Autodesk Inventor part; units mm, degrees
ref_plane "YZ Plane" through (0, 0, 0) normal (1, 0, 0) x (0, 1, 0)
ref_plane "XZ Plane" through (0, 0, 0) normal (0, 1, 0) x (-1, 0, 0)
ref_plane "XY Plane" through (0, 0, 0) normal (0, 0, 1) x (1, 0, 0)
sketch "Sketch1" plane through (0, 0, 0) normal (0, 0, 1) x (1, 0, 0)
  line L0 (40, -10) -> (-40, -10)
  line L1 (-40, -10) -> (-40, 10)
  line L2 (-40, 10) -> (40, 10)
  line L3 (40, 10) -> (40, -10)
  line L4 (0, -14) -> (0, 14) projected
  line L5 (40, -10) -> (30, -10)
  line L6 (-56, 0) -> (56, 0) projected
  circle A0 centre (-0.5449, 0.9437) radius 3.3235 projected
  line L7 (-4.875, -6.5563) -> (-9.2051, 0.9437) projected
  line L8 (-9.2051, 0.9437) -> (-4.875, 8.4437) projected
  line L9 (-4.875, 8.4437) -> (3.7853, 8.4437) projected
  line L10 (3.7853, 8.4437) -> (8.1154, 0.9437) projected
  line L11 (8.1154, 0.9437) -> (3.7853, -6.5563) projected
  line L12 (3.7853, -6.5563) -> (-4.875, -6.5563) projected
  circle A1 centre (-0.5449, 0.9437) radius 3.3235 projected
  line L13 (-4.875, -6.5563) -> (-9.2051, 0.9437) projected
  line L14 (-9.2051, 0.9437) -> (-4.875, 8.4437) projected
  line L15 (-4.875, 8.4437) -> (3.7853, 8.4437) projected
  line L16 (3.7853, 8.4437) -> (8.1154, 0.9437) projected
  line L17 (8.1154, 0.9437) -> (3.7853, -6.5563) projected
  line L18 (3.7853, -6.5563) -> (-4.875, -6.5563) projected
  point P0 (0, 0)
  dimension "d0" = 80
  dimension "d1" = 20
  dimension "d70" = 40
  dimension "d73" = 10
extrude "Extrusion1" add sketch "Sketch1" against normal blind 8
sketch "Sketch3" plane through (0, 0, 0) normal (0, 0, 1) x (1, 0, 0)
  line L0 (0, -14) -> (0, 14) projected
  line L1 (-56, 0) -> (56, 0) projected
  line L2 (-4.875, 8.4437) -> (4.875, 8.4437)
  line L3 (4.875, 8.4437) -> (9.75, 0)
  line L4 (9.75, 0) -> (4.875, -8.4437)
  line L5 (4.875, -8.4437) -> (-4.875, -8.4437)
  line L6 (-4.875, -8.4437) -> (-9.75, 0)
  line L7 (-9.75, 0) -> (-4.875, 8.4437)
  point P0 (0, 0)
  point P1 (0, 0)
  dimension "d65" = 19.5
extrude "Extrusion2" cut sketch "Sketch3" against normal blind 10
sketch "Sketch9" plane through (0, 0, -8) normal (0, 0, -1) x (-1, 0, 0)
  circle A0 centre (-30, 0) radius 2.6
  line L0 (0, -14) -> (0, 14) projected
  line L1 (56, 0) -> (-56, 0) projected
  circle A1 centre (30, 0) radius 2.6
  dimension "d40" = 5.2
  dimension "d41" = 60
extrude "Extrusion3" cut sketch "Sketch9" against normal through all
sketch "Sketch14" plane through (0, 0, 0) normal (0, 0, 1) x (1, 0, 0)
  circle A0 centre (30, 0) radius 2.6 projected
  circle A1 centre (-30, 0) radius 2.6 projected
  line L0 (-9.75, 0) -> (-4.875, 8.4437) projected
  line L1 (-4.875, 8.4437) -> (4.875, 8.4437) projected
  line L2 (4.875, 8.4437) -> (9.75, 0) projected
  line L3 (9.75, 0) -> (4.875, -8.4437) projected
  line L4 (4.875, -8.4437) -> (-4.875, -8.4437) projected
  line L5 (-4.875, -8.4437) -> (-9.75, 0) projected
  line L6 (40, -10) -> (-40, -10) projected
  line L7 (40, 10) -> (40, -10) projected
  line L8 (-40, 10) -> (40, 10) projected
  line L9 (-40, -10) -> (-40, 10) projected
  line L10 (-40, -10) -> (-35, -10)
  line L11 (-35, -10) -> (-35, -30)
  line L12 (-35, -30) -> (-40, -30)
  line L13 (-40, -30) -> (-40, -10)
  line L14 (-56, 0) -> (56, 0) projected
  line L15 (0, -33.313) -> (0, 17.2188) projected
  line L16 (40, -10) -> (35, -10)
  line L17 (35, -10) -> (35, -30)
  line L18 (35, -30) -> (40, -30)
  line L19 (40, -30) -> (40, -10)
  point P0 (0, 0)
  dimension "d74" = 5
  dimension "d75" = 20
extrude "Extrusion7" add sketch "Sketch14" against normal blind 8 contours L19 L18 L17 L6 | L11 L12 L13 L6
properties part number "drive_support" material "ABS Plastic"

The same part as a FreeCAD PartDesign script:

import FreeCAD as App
import Part
import Sketcher

V = App.Vector
Q = App.Units.Quantity

doc = App.newDocument("Part")
body = doc.addObject("PartDesign::Body", "Body")

# Sketch on XY plane
sketch1 = doc.addObject("Sketcher::SketchObject", "Sketch")
body.addObject(sketch1)
sketch1.AttachmentSupport = (doc.XY_Plane, [""])
sketch1.MapMode = "FlatFace"
sketch1.addGeometry([
    Part.LineSegment(V(40, -10, 0), V(40, 10, 0)),
    Part.LineSegment(V(40, 10, 0), V(-40, 10, 0)),
    Part.LineSegment(V(-40, 10, 0), V(-40, -10, 0)),
    Part.LineSegment(V(-40, -10, 0), V(40, -10, 0)),
], False)
sketch1.addConstraint([
    Sketcher.Constraint("Coincident", 0, 2, 1, 1),
    Sketcher.Constraint("Coincident", 1, 2, 2, 1),
    Sketcher.Constraint("Coincident", 2, 2, 3, 1),
    Sketcher.Constraint("Coincident", 3, 2, 0, 1),
    Sketcher.Constraint("Vertical", 0),
    Sketcher.Constraint("Horizontal", 1),
    Sketcher.Constraint("Vertical", 2),
    Sketcher.Constraint("Horizontal", 3),
    Sketcher.Constraint("Symmetric", 0, 2, 2, 2, -1, 1),
    Sketcher.Constraint("DistanceX", 1, 2, 1, 1, 80.0),
    Sketcher.Constraint("DistanceY", 0, 1, 0, 2, 20.0),
])
pad1 = doc.addObject("PartDesign::Pad", "Pad")
body.addObject(pad1)
pad1.Profile = sketch1
pad1.Length = 8
pad1.Reversed = True

# Sketch on XY plane
sketch2 = doc.addObject("Sketcher::SketchObject", "Sketch001")
body.addObject(sketch2)
sketch2.AttachmentSupport = (doc.XY_Plane, [""])
sketch2.MapMode = "FlatFace"
sketch2.addGeometry([
    Part.LineSegment(V(-5, -8, 0), V(5, -8, 0)),  # 0
    Part.LineSegment(V(5, -8, 0), V(10, 0, 0)),  # 1
    Part.LineSegment(V(10, 0, 0), V(5, 8, 0)),  # 2
    Part.LineSegment(V(5, 8, 0), V(-5, 8, 0)),  # 3
    Part.LineSegment(V(-5, 8, 0), V(-10, 0, 0)),  # 4
    Part.LineSegment(V(-10, 0, 0), V(-5, -8, 0)),  # 5
], False)
sketch2.addConstraint([
    Sketcher.Constraint("Coincident", 0, 2, 1, 1),
    Sketcher.Constraint("Coincident", 1, 2, 2, 1),
    Sketcher.Constraint("Coincident", 2, 2, 3, 1),
    Sketcher.Constraint("Coincident", 3, 2, 4, 1),
    Sketcher.Constraint("Coincident", 4, 2, 5, 1),
    Sketcher.Constraint("Coincident", 5, 2, 0, 1),
    Sketcher.Constraint("Horizontal", 0),
    Sketcher.Constraint("Horizontal", 3),
    Sketcher.Constraint("Symmetric", 0, 2, 3, 2, -1, 1),
    Sketcher.Constraint("Symmetric", 1, 2, 4, 2, -1, 1),
    Sketcher.Constraint("PointOnObject", 1, 2, -1),
    Sketcher.Constraint("Parallel", 2, 5),
    Sketcher.Constraint("Vertical", 0, 2, 2, 2),
    Sketcher.Constraint("DistanceX", 4, 2, 1, 2, 19.5),
    Sketcher.Constraint("Angle", 1, Q("59.9999 deg")),
    Sketcher.Constraint("DistanceX", 0, 1, 0, 2, 9.75),
])
pocket1 = doc.addObject("PartDesign::Pocket", "Pocket")
body.addObject(pocket1)
pocket1.Profile = sketch2
pocket1.Length = 10

# Sketch on XY plane
sketch3 = doc.addObject("Sketcher::SketchObject", "Sketch002")
body.addObject(sketch3)
sketch3.AttachmentSupport = (doc.XY_Plane, [""])
sketch3.MapMode = "FlatFace"
sketch3.AttachmentOffset = App.Placement(V(0, 0, -8), App.Rotation())
sketch3.addGeometry([
    Part.Circle(V(30, 0, 0), V(0, 0, 1), 2.6),
    Part.Circle(V(-30, 0, 0), V(0, 0, 1), 2.6),
], False)
sketch3.addConstraint([
    Sketcher.Constraint("Equal", 0, 1),
    Sketcher.Constraint("Symmetric", 0, 3, 1, 3, -1, 1),
    Sketcher.Constraint("PointOnObject", 0, 3, -1),
    Sketcher.Constraint("Diameter", 0, 5.2),
    Sketcher.Constraint("DistanceX", 1, 3, 0, 3, 60.0),
])
pocket2 = doc.addObject("PartDesign::Pocket", "Pocket001")
body.addObject(pocket2)
pocket2.Profile = sketch3
pocket2.Type = "ThroughAll"
pocket2.Reversed = True

# Sketch on XY plane
sketch4 = doc.addObject("Sketcher::SketchObject", "Sketch003")
body.addObject(sketch4)
sketch4.AttachmentSupport = (doc.XY_Plane, [""])
sketch4.MapMode = "FlatFace"
sketch4.addGeometry([
    Part.LineSegment(V(40, -30, 0), V(40, -10, 0)),  # 0
    Part.LineSegment(V(40, -10, 0), V(35, -10, 0)),  # 1
    Part.LineSegment(V(35, -10, 0), V(35, -30, 0)),  # 2
    Part.LineSegment(V(35, -30, 0), V(40, -30, 0)),  # 3
    Part.LineSegment(V(-35, -30, 0), V(-35, -10, 0)),  # 4
    Part.LineSegment(V(-35, -10, 0), V(-40, -10, 0)),  # 5
    Part.LineSegment(V(-40, -10, 0), V(-40, -30, 0)),  # 6
    Part.LineSegment(V(-40, -30, 0), V(-35, -30, 0)),  # 7
], False)
sketch4.addConstraint([
    Sketcher.Constraint("Coincident", 0, 2, 1, 1),
    Sketcher.Constraint("Coincident", 1, 2, 2, 1),
    Sketcher.Constraint("Coincident", 2, 2, 3, 1),
    Sketcher.Constraint("Coincident", 3, 2, 0, 1),
    Sketcher.Constraint("Coincident", 4, 2, 5, 1),
    Sketcher.Constraint("Coincident", 5, 2, 6, 1),
    Sketcher.Constraint("Coincident", 6, 2, 7, 1),
    Sketcher.Constraint("Coincident", 7, 2, 4, 1),
    Sketcher.Constraint("Vertical", 0),
    Sketcher.Constraint("Horizontal", 1),
    Sketcher.Constraint("Vertical", 2),
    Sketcher.Constraint("Horizontal", 3),
    Sketcher.Constraint("Vertical", 4),
    Sketcher.Constraint("Horizontal", 5),
    Sketcher.Constraint("Vertical", 6),
    Sketcher.Constraint("Horizontal", 7),
    Sketcher.Constraint("Symmetric", 1, 2, 4, 2, -2),
    Sketcher.Constraint("Symmetric", 3, 2, 6, 2, -2),
    Sketcher.Constraint("DistanceX", 1, 2, 1, 1, 5.0),
    Sketcher.Constraint("DistanceY", 0, 1, 0, 2, 20.0),
    Sketcher.Constraint("DistanceX", -1, 1, 0, 2, 40.0),
    Sketcher.Constraint("DistanceY", 0, 2, -1, 1, 10.0),
])
pad2 = doc.addObject("PartDesign::Pad", "Pad001")
body.addObject(pad2)
pad2.Profile = sketch4
pad2.Length = 8
pad2.Reversed = True

doc.recompute()
